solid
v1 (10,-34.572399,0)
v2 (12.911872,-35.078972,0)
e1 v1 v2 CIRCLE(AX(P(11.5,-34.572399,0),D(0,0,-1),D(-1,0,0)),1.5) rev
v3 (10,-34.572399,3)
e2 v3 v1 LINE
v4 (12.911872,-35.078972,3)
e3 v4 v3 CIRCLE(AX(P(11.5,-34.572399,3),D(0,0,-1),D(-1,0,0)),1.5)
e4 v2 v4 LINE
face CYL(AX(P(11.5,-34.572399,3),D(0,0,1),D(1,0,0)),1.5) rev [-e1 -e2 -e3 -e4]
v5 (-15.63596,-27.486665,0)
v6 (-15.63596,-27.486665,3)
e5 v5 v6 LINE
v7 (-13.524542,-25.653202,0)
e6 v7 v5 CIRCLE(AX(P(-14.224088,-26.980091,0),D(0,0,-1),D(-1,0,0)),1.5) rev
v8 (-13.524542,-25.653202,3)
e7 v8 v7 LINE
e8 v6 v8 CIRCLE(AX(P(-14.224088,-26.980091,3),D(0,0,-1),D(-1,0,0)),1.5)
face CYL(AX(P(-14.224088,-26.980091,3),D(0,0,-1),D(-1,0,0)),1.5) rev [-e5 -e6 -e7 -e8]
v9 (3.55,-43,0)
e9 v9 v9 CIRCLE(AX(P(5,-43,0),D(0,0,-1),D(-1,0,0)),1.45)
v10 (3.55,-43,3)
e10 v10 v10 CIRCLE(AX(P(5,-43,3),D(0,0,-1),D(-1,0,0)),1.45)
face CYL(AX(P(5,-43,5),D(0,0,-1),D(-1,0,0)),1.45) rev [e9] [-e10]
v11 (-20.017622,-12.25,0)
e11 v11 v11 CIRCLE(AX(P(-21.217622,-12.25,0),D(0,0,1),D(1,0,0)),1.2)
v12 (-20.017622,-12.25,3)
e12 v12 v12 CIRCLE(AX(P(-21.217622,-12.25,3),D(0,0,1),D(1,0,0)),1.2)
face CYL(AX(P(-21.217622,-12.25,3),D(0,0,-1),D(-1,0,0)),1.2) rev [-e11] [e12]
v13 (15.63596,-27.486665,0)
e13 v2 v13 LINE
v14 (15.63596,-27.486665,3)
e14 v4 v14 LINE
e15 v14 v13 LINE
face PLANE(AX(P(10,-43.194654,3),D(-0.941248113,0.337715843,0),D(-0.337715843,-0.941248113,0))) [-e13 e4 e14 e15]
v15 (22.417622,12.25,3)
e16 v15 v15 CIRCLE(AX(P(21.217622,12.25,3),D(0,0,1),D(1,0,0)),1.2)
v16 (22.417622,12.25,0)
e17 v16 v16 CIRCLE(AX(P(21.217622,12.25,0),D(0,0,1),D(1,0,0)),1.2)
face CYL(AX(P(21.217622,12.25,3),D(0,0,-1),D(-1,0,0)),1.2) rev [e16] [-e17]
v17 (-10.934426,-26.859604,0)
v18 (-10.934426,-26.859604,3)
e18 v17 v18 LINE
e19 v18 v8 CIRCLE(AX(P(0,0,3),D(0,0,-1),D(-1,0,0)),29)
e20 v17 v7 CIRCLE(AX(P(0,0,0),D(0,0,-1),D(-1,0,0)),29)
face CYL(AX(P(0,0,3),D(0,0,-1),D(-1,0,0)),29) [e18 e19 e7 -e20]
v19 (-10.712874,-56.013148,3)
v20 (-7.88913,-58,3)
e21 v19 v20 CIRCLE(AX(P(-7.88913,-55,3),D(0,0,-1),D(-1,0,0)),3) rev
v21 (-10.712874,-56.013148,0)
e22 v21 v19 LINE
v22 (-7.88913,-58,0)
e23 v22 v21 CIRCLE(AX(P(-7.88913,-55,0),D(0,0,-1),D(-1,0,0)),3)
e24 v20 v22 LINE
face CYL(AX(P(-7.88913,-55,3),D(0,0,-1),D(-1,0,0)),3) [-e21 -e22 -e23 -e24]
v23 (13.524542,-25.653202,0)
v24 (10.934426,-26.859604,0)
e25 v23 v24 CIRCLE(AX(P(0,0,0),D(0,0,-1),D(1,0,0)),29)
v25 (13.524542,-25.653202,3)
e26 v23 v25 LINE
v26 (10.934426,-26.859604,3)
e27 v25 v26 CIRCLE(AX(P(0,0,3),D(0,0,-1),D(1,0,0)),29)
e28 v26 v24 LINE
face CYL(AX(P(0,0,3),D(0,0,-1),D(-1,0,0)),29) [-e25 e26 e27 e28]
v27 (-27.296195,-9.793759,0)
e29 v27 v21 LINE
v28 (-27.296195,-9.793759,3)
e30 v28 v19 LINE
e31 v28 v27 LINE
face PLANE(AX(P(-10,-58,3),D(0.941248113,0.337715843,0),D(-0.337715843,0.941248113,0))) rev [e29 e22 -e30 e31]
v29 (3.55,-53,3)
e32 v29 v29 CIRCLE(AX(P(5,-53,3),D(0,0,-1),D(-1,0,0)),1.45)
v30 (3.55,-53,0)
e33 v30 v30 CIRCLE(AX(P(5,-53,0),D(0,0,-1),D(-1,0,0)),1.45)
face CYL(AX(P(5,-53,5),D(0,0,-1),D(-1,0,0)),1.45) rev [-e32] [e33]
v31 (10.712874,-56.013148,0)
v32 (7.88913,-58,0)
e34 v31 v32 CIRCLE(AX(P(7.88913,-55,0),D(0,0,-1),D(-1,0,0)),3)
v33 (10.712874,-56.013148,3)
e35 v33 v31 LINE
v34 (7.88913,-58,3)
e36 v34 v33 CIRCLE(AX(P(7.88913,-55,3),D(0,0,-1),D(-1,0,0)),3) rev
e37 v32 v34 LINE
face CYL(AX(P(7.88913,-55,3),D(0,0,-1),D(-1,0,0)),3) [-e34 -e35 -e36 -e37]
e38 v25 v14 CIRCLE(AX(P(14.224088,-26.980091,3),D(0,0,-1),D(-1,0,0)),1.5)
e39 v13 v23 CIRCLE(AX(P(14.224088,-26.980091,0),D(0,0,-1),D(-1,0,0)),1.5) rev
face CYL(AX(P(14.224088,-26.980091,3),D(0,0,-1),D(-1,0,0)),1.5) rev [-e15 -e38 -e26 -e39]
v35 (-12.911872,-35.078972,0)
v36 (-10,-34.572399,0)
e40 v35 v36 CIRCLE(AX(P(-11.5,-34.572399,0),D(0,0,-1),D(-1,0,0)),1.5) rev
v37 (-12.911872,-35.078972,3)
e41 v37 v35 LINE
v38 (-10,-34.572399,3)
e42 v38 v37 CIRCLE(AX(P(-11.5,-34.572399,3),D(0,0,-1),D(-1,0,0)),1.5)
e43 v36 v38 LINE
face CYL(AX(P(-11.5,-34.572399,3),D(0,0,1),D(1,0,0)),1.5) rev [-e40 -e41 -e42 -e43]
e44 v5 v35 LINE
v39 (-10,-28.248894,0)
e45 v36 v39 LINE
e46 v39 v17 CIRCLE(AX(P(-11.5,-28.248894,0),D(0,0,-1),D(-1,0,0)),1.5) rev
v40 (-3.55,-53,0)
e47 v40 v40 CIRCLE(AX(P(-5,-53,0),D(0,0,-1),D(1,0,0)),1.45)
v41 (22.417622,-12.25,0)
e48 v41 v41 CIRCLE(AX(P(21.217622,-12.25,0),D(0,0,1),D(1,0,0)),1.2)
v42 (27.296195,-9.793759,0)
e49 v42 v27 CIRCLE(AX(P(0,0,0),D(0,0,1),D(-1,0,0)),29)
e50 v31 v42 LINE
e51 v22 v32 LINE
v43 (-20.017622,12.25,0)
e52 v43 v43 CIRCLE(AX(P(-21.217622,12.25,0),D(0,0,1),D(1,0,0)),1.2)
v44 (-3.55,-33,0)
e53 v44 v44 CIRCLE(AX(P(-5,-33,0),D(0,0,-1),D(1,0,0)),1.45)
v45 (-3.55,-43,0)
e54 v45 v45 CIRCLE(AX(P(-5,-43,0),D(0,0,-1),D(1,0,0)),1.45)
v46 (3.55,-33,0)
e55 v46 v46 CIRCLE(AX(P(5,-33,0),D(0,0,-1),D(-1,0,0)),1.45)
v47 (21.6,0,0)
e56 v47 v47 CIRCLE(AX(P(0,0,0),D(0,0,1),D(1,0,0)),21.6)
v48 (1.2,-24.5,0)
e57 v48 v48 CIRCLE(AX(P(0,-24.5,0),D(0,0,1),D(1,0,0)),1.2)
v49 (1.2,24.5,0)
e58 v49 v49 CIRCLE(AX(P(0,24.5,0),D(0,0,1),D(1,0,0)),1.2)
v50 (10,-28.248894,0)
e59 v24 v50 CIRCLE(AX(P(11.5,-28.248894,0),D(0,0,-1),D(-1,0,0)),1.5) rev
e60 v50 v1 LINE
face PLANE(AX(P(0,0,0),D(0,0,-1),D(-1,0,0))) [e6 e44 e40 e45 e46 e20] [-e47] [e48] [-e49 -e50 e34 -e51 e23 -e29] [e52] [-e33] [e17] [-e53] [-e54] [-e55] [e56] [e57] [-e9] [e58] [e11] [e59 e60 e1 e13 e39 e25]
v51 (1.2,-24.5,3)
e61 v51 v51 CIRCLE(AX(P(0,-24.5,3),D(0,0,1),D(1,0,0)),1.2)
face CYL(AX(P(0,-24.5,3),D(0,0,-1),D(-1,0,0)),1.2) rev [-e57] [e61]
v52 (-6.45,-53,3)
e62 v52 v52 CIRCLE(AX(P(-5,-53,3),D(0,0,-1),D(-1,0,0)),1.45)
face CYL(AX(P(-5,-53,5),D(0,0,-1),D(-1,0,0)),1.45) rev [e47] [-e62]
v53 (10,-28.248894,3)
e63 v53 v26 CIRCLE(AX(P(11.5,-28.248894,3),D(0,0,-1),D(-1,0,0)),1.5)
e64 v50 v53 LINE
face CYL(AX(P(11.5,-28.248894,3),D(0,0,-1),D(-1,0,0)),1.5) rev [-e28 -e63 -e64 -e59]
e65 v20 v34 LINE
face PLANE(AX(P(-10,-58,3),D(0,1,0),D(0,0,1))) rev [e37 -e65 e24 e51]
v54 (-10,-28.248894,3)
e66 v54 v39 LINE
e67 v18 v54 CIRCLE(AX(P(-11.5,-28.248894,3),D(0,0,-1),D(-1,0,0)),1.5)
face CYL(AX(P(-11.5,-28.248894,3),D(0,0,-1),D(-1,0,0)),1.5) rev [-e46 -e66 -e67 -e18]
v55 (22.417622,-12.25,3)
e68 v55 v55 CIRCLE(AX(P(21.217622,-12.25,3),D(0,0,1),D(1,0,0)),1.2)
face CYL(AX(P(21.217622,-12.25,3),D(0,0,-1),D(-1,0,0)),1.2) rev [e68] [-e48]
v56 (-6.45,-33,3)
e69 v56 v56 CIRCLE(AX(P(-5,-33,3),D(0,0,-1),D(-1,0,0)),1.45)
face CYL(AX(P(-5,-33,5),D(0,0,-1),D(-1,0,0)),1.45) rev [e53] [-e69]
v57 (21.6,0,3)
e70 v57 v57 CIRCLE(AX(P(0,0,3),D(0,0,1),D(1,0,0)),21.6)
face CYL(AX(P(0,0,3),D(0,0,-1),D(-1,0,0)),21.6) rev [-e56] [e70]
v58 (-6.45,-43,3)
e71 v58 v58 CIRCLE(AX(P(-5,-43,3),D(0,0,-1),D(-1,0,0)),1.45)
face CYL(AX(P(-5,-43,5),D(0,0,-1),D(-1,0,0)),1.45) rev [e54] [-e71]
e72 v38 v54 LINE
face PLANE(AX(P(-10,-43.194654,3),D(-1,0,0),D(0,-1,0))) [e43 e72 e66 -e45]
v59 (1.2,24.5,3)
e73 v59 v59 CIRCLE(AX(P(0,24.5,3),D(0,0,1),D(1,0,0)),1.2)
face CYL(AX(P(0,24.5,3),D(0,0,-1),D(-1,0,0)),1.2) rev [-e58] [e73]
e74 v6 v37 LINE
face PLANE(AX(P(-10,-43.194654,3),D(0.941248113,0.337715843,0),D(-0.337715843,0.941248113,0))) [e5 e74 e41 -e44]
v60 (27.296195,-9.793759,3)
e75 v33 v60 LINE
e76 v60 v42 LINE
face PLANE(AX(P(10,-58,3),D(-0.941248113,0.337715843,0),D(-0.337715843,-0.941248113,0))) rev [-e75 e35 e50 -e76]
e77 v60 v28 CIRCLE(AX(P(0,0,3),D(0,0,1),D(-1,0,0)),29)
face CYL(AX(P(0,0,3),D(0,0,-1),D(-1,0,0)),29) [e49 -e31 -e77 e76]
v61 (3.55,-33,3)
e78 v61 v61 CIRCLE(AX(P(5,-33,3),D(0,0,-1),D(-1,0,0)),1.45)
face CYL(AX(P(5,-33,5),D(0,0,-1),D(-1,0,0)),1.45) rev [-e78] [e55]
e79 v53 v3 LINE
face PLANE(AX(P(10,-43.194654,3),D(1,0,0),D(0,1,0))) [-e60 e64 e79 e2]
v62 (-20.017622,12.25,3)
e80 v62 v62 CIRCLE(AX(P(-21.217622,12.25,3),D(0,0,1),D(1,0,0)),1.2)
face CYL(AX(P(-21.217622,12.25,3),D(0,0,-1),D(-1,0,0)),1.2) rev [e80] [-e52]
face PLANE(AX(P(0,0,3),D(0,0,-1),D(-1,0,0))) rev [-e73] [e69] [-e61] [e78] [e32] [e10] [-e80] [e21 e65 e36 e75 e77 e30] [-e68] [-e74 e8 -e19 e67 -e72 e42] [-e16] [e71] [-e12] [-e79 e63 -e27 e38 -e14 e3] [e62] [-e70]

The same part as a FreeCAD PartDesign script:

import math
import FreeCAD as App
import Part
import Sketcher
from FreeCAD import Vector
Q = App.Units.Quantity


def edges_at(feature, points):
    """Names of the edges that pass closest to the given points."""
    edges = feature.Shape.Edges
    near = lambda p: min(range(len(edges)), key=lambda i: edges[i].distToShape(Part.Vertex(*p))[0])
    return sorted({f"Edge{near(p) + 1}" for p in points})

doc = App.newDocument("Part")
params = doc.addObject("Spreadsheet::Sheet", "Params")
for row, (alias, value) in enumerate([
    ("sketch1_radius", "29 mm"),
    ("sketch1_diameter", "2.4 mm"),
    ("sketch1_diameter2", "43.2 mm"),
    ("sketch1_width", "20 mm"),
    ("pad1_length", "3 mm"),
    ("fillet_radius", "1.5 mm"),
    ("sketch2_diameter", "2.9 mm"),
    ("pocket1_length", "5 mm"),
    ("fillet2_radius", "3 mm"),
], start=1):
    params.set(f"A{row}", alias)
    params.set(f"B{row}", "=" + value)
    params.setAlias(f"B{row}", alias)

body = doc.addObject("PartDesign::Body", "Body")

sketch1 = body.newObject("Sketcher::SketchObject", "Sketch")
sketch1.AttachmentSupport = (doc.getObject("XY_Plane"), [""])
sketch1.MapMode = "FlatFace"
sketch1.addGeometry(Part.LineSegment(Vector(-10, -58, 0), Vector(10, -58, 0)), False)
sketch1.addGeometry(Part.LineSegment(Vector(10, -58, 0), Vector(27.296195, -9.793759, 0)), False)
sketch1.addGeometry(Part.ArcOfCircle(Part.Circle(Vector(0, 0, 0), Vector(0, 0, 1), 29), math.radians(-19.737772), math.radians(199.737772)), False)
sketch1.addGeometry(Part.LineSegment(Vector(-27.296195, -9.793759, 0), Vector(-10, -58, 0)), False)
sketch1.addGeometry(Part.LineSegment(Vector(-10, -27.221315, 0), Vector(-10, -43.194654, 0)), False)
sketch1.addGeometry(Part.LineSegment(Vector(-10, -43.194654, 0), Vector(-17.092339, -23.427589, 0)), False)
sketch1.addGeometry(Part.ArcOfCircle(Part.Circle(Vector(0, 0, 0), Vector(0, 0, 1), 29), math.radians(-126.113804), math.radians(-110.171271)), False)
sketch1.addGeometry(Part.Circle(Vector(-21.217622, -12.25, 0), Vector(0, 0, 1), 1.2), False)
sketch1.addGeometry(Part.LineSegment(Vector(17.092339, -23.427589, 0), Vector(10, -43.194654, 0)), False)
sketch1.addGeometry(Part.LineSegment(Vector(10, -43.194654, 0), Vector(10, -27.221315, 0)), False)
sketch1.addGeometry(Part.ArcOfCircle(Part.Circle(Vector(0, 0, 0), Vector(0, 0, 1), 29), math.radians(-69.828729), math.radians(-53.886196)), False)
sketch1.addGeometry(Part.Circle(Vector(0, -24.5, 0), Vector(0, 0, 1), 1.2), False)
sketch1.addGeometry(Part.Circle(Vector(21.217622, -12.25, 0), Vector(0, 0, 1), 1.2), False)
sketch1.addGeometry(Part.Circle(Vector(-21.217622, 12.25, 0), Vector(0, 0, 1), 1.2), False)
sketch1.addGeometry(Part.Circle(Vector(0, 0, 0), Vector(0, 0, 1), 21.6), False)
sketch1.addGeometry(Part.Circle(Vector(0, 24.5, 0), Vector(0, 0, 1), 1.2), False)
sketch1.addGeometry(Part.Circle(Vector(21.217622, 12.25, 0), Vector(0, 0, 1), 1.2), False)
sketch1.addConstraint(Sketcher.Constraint("Coincident", 0, 2, 1, 1))
sketch1.addConstraint(Sketcher.Constraint("Tangent", 1, 2, 2, 1))
sketch1.addConstraint(Sketcher.Constraint("Tangent", 2, 2, 3, 1))
sketch1.addConstraint(Sketcher.Constraint("Coincident", 3, 2, 0, 1))
sketch1.addConstraint(Sketcher.Constraint("Coincident", 4, 2, 5, 1))
sketch1.addConstraint(Sketcher.Constraint("Coincident", 5, 2, 6, 1))
sketch1.addConstraint(Sketcher.Constraint("Coincident", 6, 2, 4, 1))
sketch1.addConstraint(Sketcher.Constraint("Coincident", 8, 2, 9, 1))
sketch1.addConstraint(Sketcher.Constraint("Coincident", 9, 2, 10, 1))
sketch1.addConstraint(Sketcher.Constraint("Coincident", 10, 2, 8, 1))
sketch1.addConstraint(Sketcher.Constraint("Horizontal", 0))
sketch1.addConstraint(Sketcher.Constraint("Vertical", 4))
sketch1.addConstraint(Sketcher.Constraint("Vertical", 9))
sketch1.addConstraint(Sketcher.Constraint("Coincident", 2, 3, -1, 1))
sketch1.addConstraint(Sketcher.Constraint("Coincident", 6, 3, -1, 1))
sketch1.addConstraint(Sketcher.Constraint("Coincident", 10, 3, -1, 1))
sketch1.addConstraint(Sketcher.Constraint("Coincident", 14, 3, -1, 1))
sketch1.addConstraint(Sketcher.Constraint("Equal", 2, 6))
sketch1.addConstraint(Sketcher.Constraint("Equal", 6, 10))
sketch1.addConstraint(Sketcher.Constraint("Equal", 7, 11))
sketch1.addConstraint(Sketcher.Constraint("Equal", 11, 12))
sketch1.addConstraint(Sketcher.Constraint("Equal", 12, 13))
sketch1.addConstraint(Sketcher.Constraint("Equal", 13, 15))
sketch1.addConstraint(Sketcher.Constraint("Equal", 15, 16))
sketch1.addConstraint(Sketcher.Constraint("Symmetric", 12, 3, 13, 3, -1, 1))
sketch1.addConstraint(Sketcher.Constraint("Symmetric", 11, 3, 15, 3, -1, 1))
sketch1.addConstraint(Sketcher.Constraint("Symmetric", 7, 3, 16, 3, -1, 1))
sketch1.addConstraint(Sketcher.Constraint("Symmetric", 7, 3, 12, 3, -2))
sketch1.addConstraint(Sketcher.Constraint("Symmetric", 4, 2, 8, 2, -2))
sketch1.addConstraint(Sketcher.Constraint("PointOnObject", 11, 3, -2))
sketch1.addConstraint(Sketcher.Constraint("Parallel", 3, 5))
sketch1.addConstraint(Sketcher.Constraint("Parallel", 1, 8))
sketch1.addConstraint(Sketcher.Constraint("Horizontal", 1, 2, 2, 2))
sketch1.addConstraint(Sketcher.Constraint("Vertical", 3, 2, 4, 2))
sketch1.addConstraint(Sketcher.Constraint("Radius", 2, Q("29 mm")))
sketch1.addConstraint(Sketcher.Constraint("Diameter", 7, Q("2.4 mm")))
sketch1.addConstraint(Sketcher.Constraint("Diameter", 14, Q("43.2 mm")))
sketch1.addConstraint(Sketcher.Constraint("DistanceX", 0, 1, 0, 2, Q("20 mm")))
sketch1.addConstraint(Sketcher.Constraint("DistanceY", 0, 2, -1, 1, Q("58 mm")))
sketch1.addConstraint(Sketcher.Constraint("DistanceY", 11, 3, -1, 1, Q("24.5 mm")))
sketch1.addConstraint(Sketcher.Constraint("DistanceY", 7, 3, 13, 3, Q("24.5 mm")))
sketch1.addConstraint(Sketcher.Constraint("DistanceY", 4, 2, 4, 1, Q("15.973339 mm")))
sketch1.addConstraint(Sketcher.Constraint("DistanceX", 7, 3, -1, 1, Q("21.217622 mm")))
sketch1.setExpression("Constraints[34]", "Params.sketch1_radius")
sketch1.setExpression("Constraints[35]", "Params.sketch1_diameter")
sketch1.setExpression("Constraints[36]", "Params.sketch1_diameter2")
sketch1.setExpression("Constraints[37]", "Params.sketch1_width")
pad1 = body.newObject("PartDesign::Pad", "Pad")
pad1.Profile = sketch1
pad1.setExpression("Length", "Params.pad1_length")
doc.recompute()

fillet = body.newObject("PartDesign::Fillet", "Fillet")
fillet.Base = (pad1, edges_at(pad1, [
    (-17.092, -23.428, 1.5),
    (-10, -43.195, 1.5),
    (-10, -27.221, 1.5),
    (10, -43.195, 1.5),
    (17.092, -23.428, 1.5),
    (10, -27.221, 1.5),
]))
fillet.setExpression("Radius", "Params.fillet_radius")

sketch2 = body.newObject("Sketcher::SketchObject", "Sketch001")
sketch2.AttachmentSupport = (doc.getObject("XY_Plane"), [""])
sketch2.MapMode = "FlatFace"
sketch2.addGeometry(Part.Circle(Vector(5, -33, 0), Vector(0, 0, 1), 1.45), False)
sketch2.addGeometry(Part.Circle(Vector(5, -43, 0), Vector(0, 0, 1), 1.45), False)
sketch2.addGeometry(Part.Circle(Vector(5, -53, 0), Vector(0, 0, 1), 1.45), False)
sketch2.addGeometry(Part.Circle(Vector(-5, -53, 0), Vector(0, 0, 1), 1.45), False)
sketch2.addGeometry(Part.Circle(Vector(-5, -43, 0), Vector(0, 0, 1), 1.45), False)
sketch2.addGeometry(Part.Circle(Vector(-5, -33, 0), Vector(0, 0, 1), 1.45), False)
sketch2.addConstraint(Sketcher.Constraint("Equal", 0, 1))
sketch2.addConstraint(Sketcher.Constraint("Equal", 1, 2))
sketch2.addConstraint(Sketcher.Constraint("Equal", 2, 3))
sketch2.addConstraint(Sketcher.Constraint("Equal", 3, 4))
sketch2.addConstraint(Sketcher.Constraint("Equal", 4, 5))
sketch2.addConstraint(Sketcher.Constraint("Symmetric", 2, 3, 3, 3, -2))
sketch2.addConstraint(Sketcher.Constraint("Symmetric", 1, 3, 4, 3, -2))
sketch2.addConstraint(Sketcher.Constraint("Symmetric", 0, 3, 5, 3, -2))
sketch2.addConstraint(Sketcher.Constraint("Vertical", 0, 3, 1, 3))
sketch2.addConstraint(Sketcher.Constraint("Vertical", 1, 3, 2, 3))
sketch2.addConstraint(Sketcher.Constraint("Diameter", 0, Q("2.9 mm")))
sketch2.addConstraint(Sketcher.Constraint("DistanceX", -1, 1, 0, 3, Q("5 mm")))
sketch2.addConstraint(Sketcher.Constraint("DistanceY", 0, 3, -1, 1, Q("33 mm")))
sketch2.addConstraint(Sketcher.Constraint("DistanceY", 1, 3, -1, 1, Q("43 mm")))
sketch2.addConstraint(Sketcher.Constraint("DistanceY", 2, 3, -1, 1, Q("53 mm")))
sketch2.setExpression("Constraints[10]", "Params.sketch2_diameter")
pocket1 = body.newObject("PartDesign::Pocket", "Pocket")
pocket1.Profile = sketch2
pocket1.setExpression("Length", "Params.pocket1_length")
pocket1.Reversed = True
doc.recompute()

fillet2 = body.newObject("PartDesign::Fillet", "Fillet001")
fillet2.Base = (pocket1, edges_at(pocket1, [(10, -58, 1.5), (-10, -58, 1.5)]))
fillet2.setExpression("Radius", "Params.fillet2_radius")

doc.recompute()
